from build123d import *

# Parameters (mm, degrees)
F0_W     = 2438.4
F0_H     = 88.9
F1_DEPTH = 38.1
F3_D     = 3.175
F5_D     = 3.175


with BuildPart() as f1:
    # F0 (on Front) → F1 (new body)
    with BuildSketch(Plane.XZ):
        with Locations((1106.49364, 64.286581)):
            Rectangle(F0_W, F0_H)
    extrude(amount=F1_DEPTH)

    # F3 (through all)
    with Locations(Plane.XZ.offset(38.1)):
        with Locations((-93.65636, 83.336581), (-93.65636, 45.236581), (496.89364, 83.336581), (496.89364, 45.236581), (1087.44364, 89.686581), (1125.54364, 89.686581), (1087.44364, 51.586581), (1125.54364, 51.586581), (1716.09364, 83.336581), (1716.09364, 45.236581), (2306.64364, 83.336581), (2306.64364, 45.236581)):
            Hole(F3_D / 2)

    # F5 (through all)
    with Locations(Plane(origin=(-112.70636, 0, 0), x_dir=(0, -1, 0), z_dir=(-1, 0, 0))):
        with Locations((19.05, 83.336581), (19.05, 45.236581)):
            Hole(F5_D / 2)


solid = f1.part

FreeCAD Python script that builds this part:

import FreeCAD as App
import Part
import Sketcher
from FreeCAD import Vector
Q = App.Units.Quantity


def add_polygon(sketch, points):
    """Adds a closed chain of lines whose ends are joined by coincident constraints."""
    first, n = sketch.GeometryCount, len(points)
    for a, b in zip(points, points[1:] + points[:1]):
        sketch.addGeometry(Part.LineSegment(App.Vector(*a, 0), App.Vector(*b, 0)), False)
    for i in range(n):
        sketch.addConstraint(Sketcher.Constraint("Coincident", first + i, 2, first + (i + 1) % n, 1))

doc = App.newDocument("Part")
body = doc.addObject("PartDesign::Body", "Body")

# Sketch on XZ plane
sketch1 = body.newObject("Sketcher::SketchObject", "Sketch")
sketch1.AttachmentSupport = (doc.getObject("XZ_Plane"), [""])
sketch1.MapMode = "FlatFace"
add_polygon(sketch1, [(-113, 109), (-113, 20), (2326, 20), (2326, 109)])  # lines 0-3
sketch1.addConstraint(Sketcher.Constraint("Vertical", 0))
sketch1.addConstraint(Sketcher.Constraint("Horizontal", 1))
sketch1.addConstraint(Sketcher.Constraint("Vertical", 2))
sketch1.addConstraint(Sketcher.Constraint("Horizontal", 3))
sketch1.addConstraint(Sketcher.Constraint("DistanceX", 1, 1, 1, 2, Q("96 in")))
sketch1.addConstraint(Sketcher.Constraint("DistanceY", 0, 2, 0, 1, Q("3.5 in")))
sketch1.addConstraint(Sketcher.Constraint("DistanceX", 0, 2, -1, 1, Q("112.70636 mm")))
sketch1.addConstraint(Sketcher.Constraint("DistanceY", -1, 1, 0, 2, Q("19.836581 mm")))
pad1 = body.newObject("PartDesign::Pad", "Pad")
pad1.Profile = sketch1
pad1.Length = Q("1.5 in")

# Sketch on XZ plane
sketch2 = body.newObject("Sketcher::SketchObject", "Sketch001")
sketch2.AttachmentSupport = (doc.getObject("XZ_Plane"), [""])
sketch2.MapMode = "FlatFace"
sketch2.AttachmentOffset = App.Placement(Vector(0, 0, 1.5 * 25.4), App.Rotation())
sketch2.addGeometry(Part.Circle(Vector(-93.7, 83.3, 0), Vector(0, 0, 1), 1.6), False)
sketch2.addGeometry(Part.Circle(Vector(-93.7, 45.2, 0), Vector(0, 0, 1), 1.6), False)
sketch2.addGeometry(Part.Circle(Vector(496.9, 83.3, 0), Vector(0, 0, 1), 1.6), False)
sketch2.addGeometry(Part.Circle(Vector(496.9, 45.2, 0), Vector(0, 0, 1), 1.6), False)
sketch2.addGeometry(Part.Circle(Vector(1087.4, 89.7, 0), Vector(0, 0, 1), 1.6), False)
sketch2.addGeometry(Part.Circle(Vector(1125.5, 89.7, 0), Vector(0, 0, 1), 1.6), False)
sketch2.addGeometry(Part.Circle(Vector(1087.4, 51.6, 0), Vector(0, 0, 1), 1.6), False)
sketch2.addGeometry(Part.Circle(Vector(1125.5, 51.6, 0), Vector(0, 0, 1), 1.6), False)
sketch2.addGeometry(Part.Circle(Vector(1716.1, 83.3, 0), Vector(0, 0, 1), 1.6), False)
sketch2.addGeometry(Part.Circle(Vector(1716.1, 45.2, 0), Vector(0, 0, 1), 1.6), False)
sketch2.addGeometry(Part.Circle(Vector(2306.6, 83.3, 0), Vector(0, 0, 1), 1.6), False)
sketch2.addGeometry(Part.Circle(Vector(2306.6, 45.2, 0), Vector(0, 0, 1), 1.6), False)
sketch2.addConstraint(Sketcher.Constraint("Equal", 0, 1))
sketch2.addConstraint(Sketcher.Constraint("Equal", 1, 2))
sketch2.addConstraint(Sketcher.Constraint("Equal", 2, 3))
sketch2.addConstraint(Sketcher.Constraint("Equal", 3, 4))
sketch2.addConstraint(Sketcher.Constraint("Equal", 4, 5))
sketch2.addConstraint(Sketcher.Constraint("Equal", 5, 6))
sketch2.addConstraint(Sketcher.Constraint("Equal", 6, 7))
sketch2.addConstraint(Sketcher.Constraint("Equal", 7, 8))
sketch2.addConstraint(Sketcher.Constraint("Equal", 8, 9))
sketch2.addConstraint(Sketcher.Constraint("Equal", 9, 10))
sketch2.addConstraint(Sketcher.Constraint("Equal", 10, 11))
sketch2.addConstraint(Sketcher.Constraint("Horizontal", 0, 3, 2, 3))
sketch2.addConstraint(Sketcher.Constraint("Horizontal", 1, 3, 3, 3))
sketch2.addConstraint(Sketcher.Constraint("Horizontal", 4, 3, 5, 3))
sketch2.addConstraint(Sketcher.Constraint("Horizontal", 6, 3, 7, 3))
sketch2.addConstraint(Sketcher.Constraint("Horizontal", 2, 3, 8, 3))
sketch2.addConstraint(Sketcher.Constraint("Horizontal", 3, 3, 9, 3))
sketch2.addConstraint(Sketcher.Constraint("Horizontal", 8, 3, 10, 3))
sketch2.addConstraint(Sketcher.Constraint("Horizontal", 9, 3, 11, 3))
sketch2.addConstraint(Sketcher.Constraint("Vertical", 0, 3, 1, 3))
sketch2.addConstraint(Sketcher.Constraint("Vertical", 2, 3, 3, 3))
sketch2.addConstraint(Sketcher.Constraint("Vertical", 4, 3, 6, 3))
sketch2.addConstraint(Sketcher.Constraint("Vertical", 5, 3, 7, 3))
sketch2.addConstraint(Sketcher.Constraint("Vertical", 8, 3, 9, 3))
sketch2.addConstraint(Sketcher.Constraint("Vertical", 10, 3, 11, 3))
sketch2.addConstraint(Sketcher.Constraint("Diameter", 0, Q("0.125 in")))
sketch2.addConstraint(Sketcher.Constraint("DistanceX", 0, 3, 5, 3, Q("48 in")))
sketch2.addConstraint(Sketcher.Constraint("DistanceX", 2, 3, 8, 3, Q("48 in")))
sketch2.addConstraint(Sketcher.Constraint("DistanceX", 4, 3, 10, 3, Q("48 in")))
sketch2.addConstraint(Sketcher.Constraint("DistanceY", 1, 3, 0, 3, Q("1.5 in")))
sketch2.addConstraint(Sketcher.Constraint("DistanceX", 0, 3, 4, 3, Q("46.5 in")))
sketch2.addConstraint(Sketcher.Constraint("DistanceY", 6, 3, 4, 3, Q("1.5 in")))
sketch2.addConstraint(Sketcher.Constraint("DistanceX", 0, 3, 2, 3, Q("23.25 in")))
sketch2.addConstraint(Sketcher.Constraint("DistanceY", 2, 3, 4, 3, Q("0.25 in")))
sketch2.addConstraint(Sketcher.Constraint("DistanceX", 0, 3, -1, 1, Q("93.65636 mm")))
sketch2.addConstraint(Sketcher.Constraint("DistanceY", -1, 1, 0, 3, Q("83.336581 mm")))
doc.recompute()
hole = body.newObject("PartDesign::Hole", "Hole")
hole.Profile = sketch2
hole.ThreadType = "None"
hole.Diameter = Q("0.125 in")
hole.DepthType = "ThroughAll"

# Sketch on YZ plane
sketch3 = body.newObject("Sketcher::SketchObject", "Sketch002")
sketch3.AttachmentSupport = (doc.getObject("YZ_Plane"), [""])
sketch3.MapMode = "FlatFace"
sketch3.AttachmentOffset = App.Placement(Vector(0, 0, -112.70636), App.Rotation())
sketch3.addGeometry(Part.Circle(Vector(-19.1, 83.3, 0), Vector(0, 0, 1), 1.6), False)
sketch3.addGeometry(Part.Circle(Vector(-19.1, 45.2, 0), Vector(0, 0, 1), 1.6), False)
sketch3.addConstraint(Sketcher.Constraint("Equal", 0, 1))
sketch3.addConstraint(Sketcher.Constraint("Vertical", 0, 3, 1, 3))
sketch3.addConstraint(Sketcher.Constraint("Diameter", 0, Q("0.125 in")))
sketch3.addConstraint(Sketcher.Constraint("DistanceY", 1, 3, 0, 3, Q("1.5 in")))
sketch3.addConstraint(Sketcher.Constraint("DistanceX", 0, 3, -1, 1, Q("0.75 in")))
sketch3.addConstraint(Sketcher.Constraint("DistanceY", -1, 1, 0, 3, Q("83.336581 mm")))
doc.recompute()
hole2 = body.newObject("PartDesign::Hole", "Hole001")
hole2.Profile = sketch3
hole2.ThreadType = "None"
hole2.Diameter = Q("0.125 in")
hole2.DepthType = "ThroughAll"
hole2.Reversed = True

doc.recompute()
